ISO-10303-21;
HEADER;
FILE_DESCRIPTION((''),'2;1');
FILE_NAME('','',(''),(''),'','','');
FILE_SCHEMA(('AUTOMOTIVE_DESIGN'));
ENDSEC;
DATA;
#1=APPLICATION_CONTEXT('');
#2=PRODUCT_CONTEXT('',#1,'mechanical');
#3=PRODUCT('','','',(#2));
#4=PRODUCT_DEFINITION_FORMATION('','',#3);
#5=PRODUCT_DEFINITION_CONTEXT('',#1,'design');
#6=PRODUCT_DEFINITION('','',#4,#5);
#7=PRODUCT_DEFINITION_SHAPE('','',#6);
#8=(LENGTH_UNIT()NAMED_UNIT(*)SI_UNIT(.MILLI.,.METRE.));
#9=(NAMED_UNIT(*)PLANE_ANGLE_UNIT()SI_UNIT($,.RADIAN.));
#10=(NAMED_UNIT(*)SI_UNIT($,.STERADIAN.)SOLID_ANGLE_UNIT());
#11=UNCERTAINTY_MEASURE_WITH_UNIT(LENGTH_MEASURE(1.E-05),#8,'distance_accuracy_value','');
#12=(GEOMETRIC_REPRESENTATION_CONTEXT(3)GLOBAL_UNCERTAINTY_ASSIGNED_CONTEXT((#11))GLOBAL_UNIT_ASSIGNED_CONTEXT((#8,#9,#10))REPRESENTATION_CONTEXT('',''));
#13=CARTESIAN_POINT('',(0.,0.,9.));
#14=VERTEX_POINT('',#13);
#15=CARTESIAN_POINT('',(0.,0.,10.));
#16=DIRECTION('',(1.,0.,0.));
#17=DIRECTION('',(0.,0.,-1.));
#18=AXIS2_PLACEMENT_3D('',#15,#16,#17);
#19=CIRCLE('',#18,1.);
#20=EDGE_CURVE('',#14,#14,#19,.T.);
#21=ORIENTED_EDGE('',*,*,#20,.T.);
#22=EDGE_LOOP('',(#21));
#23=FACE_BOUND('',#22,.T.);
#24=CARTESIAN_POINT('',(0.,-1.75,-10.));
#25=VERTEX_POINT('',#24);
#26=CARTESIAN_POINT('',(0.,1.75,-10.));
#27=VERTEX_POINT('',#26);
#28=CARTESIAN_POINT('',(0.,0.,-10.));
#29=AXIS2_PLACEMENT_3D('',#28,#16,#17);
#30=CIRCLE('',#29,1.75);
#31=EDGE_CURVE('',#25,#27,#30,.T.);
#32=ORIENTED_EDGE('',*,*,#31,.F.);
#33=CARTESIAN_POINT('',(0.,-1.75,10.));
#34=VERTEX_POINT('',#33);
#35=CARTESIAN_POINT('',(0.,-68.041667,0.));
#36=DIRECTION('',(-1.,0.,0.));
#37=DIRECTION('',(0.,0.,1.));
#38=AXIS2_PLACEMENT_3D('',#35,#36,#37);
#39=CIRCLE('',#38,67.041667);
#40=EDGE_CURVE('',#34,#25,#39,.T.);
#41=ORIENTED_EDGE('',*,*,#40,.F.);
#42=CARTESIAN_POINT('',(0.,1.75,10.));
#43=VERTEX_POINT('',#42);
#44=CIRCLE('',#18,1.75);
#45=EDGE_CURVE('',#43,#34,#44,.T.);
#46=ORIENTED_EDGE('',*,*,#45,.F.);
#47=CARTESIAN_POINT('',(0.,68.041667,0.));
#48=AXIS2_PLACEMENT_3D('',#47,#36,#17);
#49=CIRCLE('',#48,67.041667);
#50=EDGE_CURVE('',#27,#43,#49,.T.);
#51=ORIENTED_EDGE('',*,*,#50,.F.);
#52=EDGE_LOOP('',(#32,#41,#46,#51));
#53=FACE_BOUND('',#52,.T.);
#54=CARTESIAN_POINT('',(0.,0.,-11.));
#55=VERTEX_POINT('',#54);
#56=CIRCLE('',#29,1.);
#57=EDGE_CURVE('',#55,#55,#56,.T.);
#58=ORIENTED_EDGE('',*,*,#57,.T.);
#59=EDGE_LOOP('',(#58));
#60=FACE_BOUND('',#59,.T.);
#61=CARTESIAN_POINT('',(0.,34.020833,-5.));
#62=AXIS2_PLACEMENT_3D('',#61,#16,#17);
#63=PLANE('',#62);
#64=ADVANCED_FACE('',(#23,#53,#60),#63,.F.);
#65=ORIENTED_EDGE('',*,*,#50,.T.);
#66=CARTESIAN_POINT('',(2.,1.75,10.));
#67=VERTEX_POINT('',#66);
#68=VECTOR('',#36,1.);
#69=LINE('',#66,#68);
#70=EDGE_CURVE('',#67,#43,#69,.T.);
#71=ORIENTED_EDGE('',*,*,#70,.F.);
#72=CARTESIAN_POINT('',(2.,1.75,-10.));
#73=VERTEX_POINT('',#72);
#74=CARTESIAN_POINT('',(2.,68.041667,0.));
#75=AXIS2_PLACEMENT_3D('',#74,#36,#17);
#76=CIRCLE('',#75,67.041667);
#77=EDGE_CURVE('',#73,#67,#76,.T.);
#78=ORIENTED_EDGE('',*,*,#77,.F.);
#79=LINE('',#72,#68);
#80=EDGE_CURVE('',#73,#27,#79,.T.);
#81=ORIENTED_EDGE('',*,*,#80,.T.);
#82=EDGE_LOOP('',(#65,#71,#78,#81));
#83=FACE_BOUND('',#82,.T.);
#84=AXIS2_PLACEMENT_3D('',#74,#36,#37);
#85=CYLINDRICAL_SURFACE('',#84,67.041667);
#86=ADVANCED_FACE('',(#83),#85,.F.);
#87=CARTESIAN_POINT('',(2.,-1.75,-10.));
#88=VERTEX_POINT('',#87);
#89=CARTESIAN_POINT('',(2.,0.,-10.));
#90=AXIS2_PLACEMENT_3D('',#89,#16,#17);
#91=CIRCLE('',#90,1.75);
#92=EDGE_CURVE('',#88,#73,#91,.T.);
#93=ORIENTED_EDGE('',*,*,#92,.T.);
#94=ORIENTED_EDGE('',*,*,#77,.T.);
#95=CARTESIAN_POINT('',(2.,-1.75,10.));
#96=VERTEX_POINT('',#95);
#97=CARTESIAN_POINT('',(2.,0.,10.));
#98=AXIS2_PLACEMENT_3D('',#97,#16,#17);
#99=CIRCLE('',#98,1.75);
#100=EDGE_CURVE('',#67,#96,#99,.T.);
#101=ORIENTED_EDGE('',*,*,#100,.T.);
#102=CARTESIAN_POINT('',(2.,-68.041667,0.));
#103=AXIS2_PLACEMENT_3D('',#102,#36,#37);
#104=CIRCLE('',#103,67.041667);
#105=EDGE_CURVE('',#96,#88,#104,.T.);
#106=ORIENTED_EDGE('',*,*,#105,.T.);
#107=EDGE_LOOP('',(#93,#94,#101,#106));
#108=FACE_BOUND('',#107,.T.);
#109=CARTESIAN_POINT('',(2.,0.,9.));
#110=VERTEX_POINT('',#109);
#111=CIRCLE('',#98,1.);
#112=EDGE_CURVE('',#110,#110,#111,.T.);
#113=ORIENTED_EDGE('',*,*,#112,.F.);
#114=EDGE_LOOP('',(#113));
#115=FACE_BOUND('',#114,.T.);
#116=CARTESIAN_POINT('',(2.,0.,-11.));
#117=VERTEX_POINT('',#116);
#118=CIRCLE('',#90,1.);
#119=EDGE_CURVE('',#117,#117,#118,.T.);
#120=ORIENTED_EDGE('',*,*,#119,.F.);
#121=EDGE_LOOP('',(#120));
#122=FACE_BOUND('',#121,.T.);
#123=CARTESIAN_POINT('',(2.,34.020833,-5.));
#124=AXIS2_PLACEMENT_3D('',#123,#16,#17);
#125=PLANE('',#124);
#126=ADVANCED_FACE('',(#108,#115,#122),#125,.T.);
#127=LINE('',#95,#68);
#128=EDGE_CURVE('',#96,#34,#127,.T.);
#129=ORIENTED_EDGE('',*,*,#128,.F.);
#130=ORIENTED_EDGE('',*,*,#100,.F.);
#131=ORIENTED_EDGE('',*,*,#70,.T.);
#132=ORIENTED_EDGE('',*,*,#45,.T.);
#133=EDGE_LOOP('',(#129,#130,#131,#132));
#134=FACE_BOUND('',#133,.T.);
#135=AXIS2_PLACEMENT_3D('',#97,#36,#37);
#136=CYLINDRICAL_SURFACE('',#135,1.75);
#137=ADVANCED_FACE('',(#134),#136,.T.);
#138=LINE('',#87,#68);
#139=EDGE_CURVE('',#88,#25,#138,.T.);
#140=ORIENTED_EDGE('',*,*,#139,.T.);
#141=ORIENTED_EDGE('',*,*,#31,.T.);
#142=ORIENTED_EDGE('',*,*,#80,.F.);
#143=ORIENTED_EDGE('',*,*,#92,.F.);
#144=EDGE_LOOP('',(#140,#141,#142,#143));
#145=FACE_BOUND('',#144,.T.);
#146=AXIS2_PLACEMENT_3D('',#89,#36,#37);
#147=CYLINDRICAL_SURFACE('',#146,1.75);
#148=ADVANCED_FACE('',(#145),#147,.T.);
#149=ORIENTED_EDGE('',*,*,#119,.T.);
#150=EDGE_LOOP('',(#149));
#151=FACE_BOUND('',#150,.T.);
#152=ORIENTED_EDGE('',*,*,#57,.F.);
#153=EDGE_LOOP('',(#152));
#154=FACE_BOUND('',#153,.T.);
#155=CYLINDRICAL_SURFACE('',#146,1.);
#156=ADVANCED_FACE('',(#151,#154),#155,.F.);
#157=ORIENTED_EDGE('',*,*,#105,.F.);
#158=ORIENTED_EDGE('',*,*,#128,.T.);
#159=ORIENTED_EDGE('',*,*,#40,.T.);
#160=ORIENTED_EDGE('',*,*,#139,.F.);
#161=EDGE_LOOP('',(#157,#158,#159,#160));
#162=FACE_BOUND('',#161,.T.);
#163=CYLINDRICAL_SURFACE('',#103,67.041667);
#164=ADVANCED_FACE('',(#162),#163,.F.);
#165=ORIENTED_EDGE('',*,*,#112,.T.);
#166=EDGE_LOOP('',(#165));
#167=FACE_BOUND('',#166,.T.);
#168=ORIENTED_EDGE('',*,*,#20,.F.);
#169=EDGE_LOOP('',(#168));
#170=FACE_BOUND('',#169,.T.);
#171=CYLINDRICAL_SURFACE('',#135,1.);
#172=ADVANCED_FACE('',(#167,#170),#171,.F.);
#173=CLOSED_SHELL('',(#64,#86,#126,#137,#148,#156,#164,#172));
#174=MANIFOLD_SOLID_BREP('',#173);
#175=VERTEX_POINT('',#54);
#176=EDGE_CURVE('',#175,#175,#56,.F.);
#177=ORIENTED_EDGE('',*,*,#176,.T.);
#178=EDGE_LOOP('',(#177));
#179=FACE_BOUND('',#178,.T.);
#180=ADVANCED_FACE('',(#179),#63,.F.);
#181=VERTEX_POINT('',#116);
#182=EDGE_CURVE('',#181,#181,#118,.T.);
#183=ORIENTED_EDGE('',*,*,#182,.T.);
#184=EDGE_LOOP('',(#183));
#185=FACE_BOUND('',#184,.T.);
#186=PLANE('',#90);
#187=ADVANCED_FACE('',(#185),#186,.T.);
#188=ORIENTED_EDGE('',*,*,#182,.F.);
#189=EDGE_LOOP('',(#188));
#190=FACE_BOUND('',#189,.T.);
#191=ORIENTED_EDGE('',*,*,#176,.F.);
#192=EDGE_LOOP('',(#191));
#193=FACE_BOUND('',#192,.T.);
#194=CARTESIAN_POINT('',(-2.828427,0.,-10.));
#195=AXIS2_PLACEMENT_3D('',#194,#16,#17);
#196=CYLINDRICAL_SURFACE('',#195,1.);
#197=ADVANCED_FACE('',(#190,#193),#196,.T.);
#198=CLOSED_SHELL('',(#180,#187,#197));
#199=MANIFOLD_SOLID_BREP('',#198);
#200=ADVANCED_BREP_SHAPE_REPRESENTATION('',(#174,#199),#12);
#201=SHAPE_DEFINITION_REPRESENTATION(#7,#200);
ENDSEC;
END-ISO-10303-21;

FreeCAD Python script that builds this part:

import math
import FreeCAD as App
import Part
import Sketcher
from FreeCAD import Vector

doc = App.newDocument("Part")
body = doc.addObject("PartDesign::Body", "Body")

sketch1 = doc.addObject("Sketcher::SketchObject", "Sketch")
body.addObject(sketch1)
sketch1.AttachmentSupport = (doc.YZ_Plane, [""])
sketch1.MapMode = "FlatFace"
sketch1.addGeometry([
    Part.ArcOfCircle(Part.Circle(Vector(0, 10, 0), Vector(0, 0, 1), 1.8), math.radians(0), math.radians(180)),
    Part.ArcOfCircle(Part.Circle(Vector(-68, 0, 0), Vector(0, 0, 1), 67), math.radians(-8.58), math.radians(8.58)),
    Part.ArcOfCircle(Part.Circle(Vector(0, -10, 0), Vector(0, 0, 1), 1.8), math.radians(180), math.radians(360)),
    Part.ArcOfCircle(Part.Circle(Vector(68, 0, 0), Vector(0, 0, 1), 67), math.radians(171.42), math.radians(188.58)),
    Part.Circle(Vector(0, 10, 0), Vector(0, 0, 1), 1),
    Part.Circle(Vector(0, -10, 0), Vector(0, 0, 1), 1),
], False)
sketch1.addConstraint([
    Sketcher.Constraint("Coincident", 0, 2, 1, 2),
    Sketcher.Constraint("Coincident", 1, 1, 2, 1),
    Sketcher.Constraint("Coincident", 2, 2, 3, 2),
    Sketcher.Constraint("Coincident", 3, 1, 0, 1),
    Sketcher.Constraint("Coincident", 4, 3, 0, 3),
    Sketcher.Constraint("Coincident", 5, 3, 2, 3),
    Sketcher.Constraint("Equal", 0, 2),
    Sketcher.Constraint("Equal", 1, 3),
    Sketcher.Constraint("Equal", 4, 5),
    Sketcher.Constraint("Symmetric", 0, 3, 2, 3, -1, 1),
    Sketcher.Constraint("Symmetric", 1, 3, 3, 3, -1, 1),
    Sketcher.Constraint("Symmetric", 1, 1, 2, 2, -2),
    Sketcher.Constraint("Horizontal", 4, 3, 0, 2),
    Sketcher.Constraint("Diameter", 4, 2.0),
    Sketcher.Constraint("Radius", 0, 1.75),
    Sketcher.Constraint("DistanceY", -1, 1, 0, 3, 10.0),
    Sketcher.Constraint("Radius", 1, 67.041667),
])
pad1 = doc.addObject("PartDesign::Pad", "Pad")
body.addObject(pad1)
pad1.Profile = sketch1
pad1.Length = 2
body2 = doc.addObject("PartDesign::Body", "Body001")

sketch2 = doc.addObject("Sketcher::SketchObject", "Sketch001")
body2.addObject(sketch2)
sketch2.AttachmentSupport = (doc.getObject("YZ_Plane001"), [""])
sketch2.MapMode = "FlatFace"
sketch2.AttachmentOffset = App.Placement(Vector(0, 0, 2), App.Rotation())
sketch2.addGeometry(Part.Circle(Vector(0, -10, 0), Vector(0, 0, 1), 1), False)
sketch2.addConstraint([
    Sketcher.Constraint("PointOnObject", 0, 3, -2),
    Sketcher.Constraint("Diameter", 0, 2.0),
    Sketcher.Constraint("DistanceY", 0, 3, -1, 1, 10.0),
])
pad2 = doc.addObject("PartDesign::Pad", "Pad001")
body2.addObject(pad2)
pad2.Profile = sketch2
pad2.Length = 2
pad2.Reversed = True

doc.recompute()
